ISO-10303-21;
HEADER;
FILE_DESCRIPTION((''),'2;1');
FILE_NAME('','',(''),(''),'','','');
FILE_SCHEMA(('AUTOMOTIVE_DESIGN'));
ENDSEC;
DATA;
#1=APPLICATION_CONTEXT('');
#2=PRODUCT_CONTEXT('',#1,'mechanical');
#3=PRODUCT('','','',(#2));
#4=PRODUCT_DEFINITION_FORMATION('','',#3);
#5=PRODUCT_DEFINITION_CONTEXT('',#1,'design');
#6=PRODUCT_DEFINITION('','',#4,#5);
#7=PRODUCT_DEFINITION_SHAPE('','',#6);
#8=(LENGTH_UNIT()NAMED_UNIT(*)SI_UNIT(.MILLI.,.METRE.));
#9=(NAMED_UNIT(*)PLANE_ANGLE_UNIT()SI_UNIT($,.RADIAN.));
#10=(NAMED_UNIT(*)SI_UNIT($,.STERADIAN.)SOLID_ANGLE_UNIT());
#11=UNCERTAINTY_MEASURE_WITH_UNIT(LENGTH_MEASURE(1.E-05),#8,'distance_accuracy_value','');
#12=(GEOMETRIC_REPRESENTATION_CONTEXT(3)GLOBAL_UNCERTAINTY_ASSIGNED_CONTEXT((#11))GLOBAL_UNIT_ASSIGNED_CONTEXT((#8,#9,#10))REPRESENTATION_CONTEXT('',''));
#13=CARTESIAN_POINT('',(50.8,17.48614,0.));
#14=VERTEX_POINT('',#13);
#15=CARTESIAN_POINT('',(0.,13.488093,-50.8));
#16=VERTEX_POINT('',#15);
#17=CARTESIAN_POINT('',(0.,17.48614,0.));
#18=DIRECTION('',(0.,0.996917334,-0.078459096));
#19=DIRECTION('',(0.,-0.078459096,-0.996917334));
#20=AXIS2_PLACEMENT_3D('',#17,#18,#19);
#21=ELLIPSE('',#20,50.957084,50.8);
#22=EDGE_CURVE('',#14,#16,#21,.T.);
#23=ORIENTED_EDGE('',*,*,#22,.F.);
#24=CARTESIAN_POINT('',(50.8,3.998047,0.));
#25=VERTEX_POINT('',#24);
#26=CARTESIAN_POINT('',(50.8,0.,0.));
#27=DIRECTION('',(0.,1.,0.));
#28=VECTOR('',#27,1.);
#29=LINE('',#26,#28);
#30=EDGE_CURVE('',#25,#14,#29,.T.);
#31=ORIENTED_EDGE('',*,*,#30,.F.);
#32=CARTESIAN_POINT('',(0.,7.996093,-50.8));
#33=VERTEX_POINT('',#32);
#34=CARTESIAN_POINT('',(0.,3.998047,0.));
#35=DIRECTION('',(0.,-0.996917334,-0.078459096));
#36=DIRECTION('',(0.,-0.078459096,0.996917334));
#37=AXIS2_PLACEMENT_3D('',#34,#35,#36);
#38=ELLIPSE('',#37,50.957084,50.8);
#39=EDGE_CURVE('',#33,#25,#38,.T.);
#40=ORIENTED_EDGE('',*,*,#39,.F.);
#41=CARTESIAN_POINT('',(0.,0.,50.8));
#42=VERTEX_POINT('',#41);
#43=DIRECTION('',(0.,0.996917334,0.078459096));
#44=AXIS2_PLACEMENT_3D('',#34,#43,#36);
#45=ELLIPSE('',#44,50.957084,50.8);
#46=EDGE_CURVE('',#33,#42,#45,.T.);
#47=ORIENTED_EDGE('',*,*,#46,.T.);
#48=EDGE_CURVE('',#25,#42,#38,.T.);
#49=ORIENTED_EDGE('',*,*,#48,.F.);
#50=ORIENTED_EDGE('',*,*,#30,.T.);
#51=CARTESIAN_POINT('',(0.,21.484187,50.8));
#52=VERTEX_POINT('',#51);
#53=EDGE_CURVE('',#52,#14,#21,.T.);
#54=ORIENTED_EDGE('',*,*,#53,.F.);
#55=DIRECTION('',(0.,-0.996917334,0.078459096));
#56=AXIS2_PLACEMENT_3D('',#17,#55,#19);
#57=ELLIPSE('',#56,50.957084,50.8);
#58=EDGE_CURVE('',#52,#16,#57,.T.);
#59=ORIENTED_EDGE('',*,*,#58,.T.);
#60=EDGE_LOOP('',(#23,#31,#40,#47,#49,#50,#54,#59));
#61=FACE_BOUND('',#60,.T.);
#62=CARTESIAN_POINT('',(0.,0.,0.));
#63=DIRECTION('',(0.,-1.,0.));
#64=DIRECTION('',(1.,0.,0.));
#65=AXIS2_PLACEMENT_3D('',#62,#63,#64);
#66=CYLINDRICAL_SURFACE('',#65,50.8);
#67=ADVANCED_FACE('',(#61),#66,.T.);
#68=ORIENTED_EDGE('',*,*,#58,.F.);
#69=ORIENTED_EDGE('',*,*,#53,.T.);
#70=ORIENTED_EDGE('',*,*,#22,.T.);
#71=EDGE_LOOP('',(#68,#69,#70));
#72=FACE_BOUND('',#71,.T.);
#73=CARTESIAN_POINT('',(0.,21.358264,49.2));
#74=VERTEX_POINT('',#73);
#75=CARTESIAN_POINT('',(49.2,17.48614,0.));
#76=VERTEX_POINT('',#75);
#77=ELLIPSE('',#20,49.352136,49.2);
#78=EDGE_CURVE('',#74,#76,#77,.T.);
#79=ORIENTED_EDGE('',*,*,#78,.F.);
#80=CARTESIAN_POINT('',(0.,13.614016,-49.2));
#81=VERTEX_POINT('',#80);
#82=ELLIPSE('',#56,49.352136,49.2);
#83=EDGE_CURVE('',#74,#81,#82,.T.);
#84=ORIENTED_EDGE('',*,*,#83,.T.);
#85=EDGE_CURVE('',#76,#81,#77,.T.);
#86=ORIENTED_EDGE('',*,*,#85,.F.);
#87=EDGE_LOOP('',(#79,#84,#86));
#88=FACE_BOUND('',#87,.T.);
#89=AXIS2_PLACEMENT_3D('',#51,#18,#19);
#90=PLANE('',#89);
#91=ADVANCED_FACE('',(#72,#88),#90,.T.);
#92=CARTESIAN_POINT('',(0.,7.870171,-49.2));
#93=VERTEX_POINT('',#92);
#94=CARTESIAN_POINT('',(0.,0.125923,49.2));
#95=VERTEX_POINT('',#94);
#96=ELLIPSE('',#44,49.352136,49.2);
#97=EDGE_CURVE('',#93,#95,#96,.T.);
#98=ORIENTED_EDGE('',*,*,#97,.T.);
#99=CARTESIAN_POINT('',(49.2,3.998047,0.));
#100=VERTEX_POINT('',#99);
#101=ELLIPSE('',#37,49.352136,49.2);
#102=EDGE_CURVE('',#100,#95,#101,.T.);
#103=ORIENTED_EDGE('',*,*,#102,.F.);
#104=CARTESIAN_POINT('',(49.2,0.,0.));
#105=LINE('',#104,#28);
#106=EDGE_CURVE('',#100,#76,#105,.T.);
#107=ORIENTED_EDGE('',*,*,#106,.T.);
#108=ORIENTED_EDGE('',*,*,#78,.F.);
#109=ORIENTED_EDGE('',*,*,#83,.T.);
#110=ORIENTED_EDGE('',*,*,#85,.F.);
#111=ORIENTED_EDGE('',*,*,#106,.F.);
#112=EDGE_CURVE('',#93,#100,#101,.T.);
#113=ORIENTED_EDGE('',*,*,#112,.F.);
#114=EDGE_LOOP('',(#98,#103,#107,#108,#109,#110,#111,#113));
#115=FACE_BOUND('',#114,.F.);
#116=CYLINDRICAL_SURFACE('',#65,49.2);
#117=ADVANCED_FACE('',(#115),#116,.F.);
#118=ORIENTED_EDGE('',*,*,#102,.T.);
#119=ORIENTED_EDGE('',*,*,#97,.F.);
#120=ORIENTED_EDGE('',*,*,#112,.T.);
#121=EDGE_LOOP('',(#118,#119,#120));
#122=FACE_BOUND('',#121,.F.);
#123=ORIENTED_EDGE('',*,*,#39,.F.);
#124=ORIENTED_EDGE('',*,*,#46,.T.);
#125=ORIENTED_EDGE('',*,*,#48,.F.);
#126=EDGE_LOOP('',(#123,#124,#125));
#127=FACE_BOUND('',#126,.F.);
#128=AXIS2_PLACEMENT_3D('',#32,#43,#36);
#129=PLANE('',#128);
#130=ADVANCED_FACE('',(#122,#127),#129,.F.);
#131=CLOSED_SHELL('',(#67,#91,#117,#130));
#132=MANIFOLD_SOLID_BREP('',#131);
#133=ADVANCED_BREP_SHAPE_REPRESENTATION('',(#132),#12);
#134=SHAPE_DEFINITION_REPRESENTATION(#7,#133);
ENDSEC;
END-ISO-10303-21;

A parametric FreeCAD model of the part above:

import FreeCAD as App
import Part
import Sketcher
Q = App.Units.Quantity


def add_polygon(sketch, points):
    """Adds a closed chain of lines whose ends are joined by coincident constraints."""
    first, n = sketch.GeometryCount, len(points)
    for a, b in zip(points, points[1:] + points[:1]):
        sketch.addGeometry(Part.LineSegment(App.Vector(*a, 0), App.Vector(*b, 0)), False)
    for i in range(n):
        sketch.addConstraint(Sketcher.Constraint("Coincident", first + i, 2, first + (i + 1) % n, 1))

doc = App.newDocument("Part")
params = doc.addObject("Spreadsheet::Sheet", "Params")
for row, (alias, value) in enumerate([
    ("sketch1_diameter", "101.6 mm"),
    ("sketch1_diameter2", "98.4 mm"),
    ("pad1_length", "1000 mm"),
    ("sketch2_height", "101.6 mm"),
], start=1):
    params.set(f"A{row}", alias)
    params.set(f"B{row}", "=" + value)
    params.setAlias(f"B{row}", alias)

body = doc.addObject("PartDesign::Body", "Body")

sketch1 = doc.addObject("Sketcher::SketchObject", "Sketch")
body.addObject(sketch1)
sketch1.AttachmentSupport = (doc.XZ_Plane, [""])
sketch1.MapMode = "FlatFace"
sketch1.addGeometry([
    Part.Circle(App.Vector(0, 0, 0), App.Vector(0, 0, 1), 51),
    Part.Circle(App.Vector(0, 0, 0), App.Vector(0, 0, 1), 49),
], False)
sketch1.addConstraint([
    Sketcher.Constraint("Coincident", 0, 3, -1, 1),
    Sketcher.Constraint("Coincident", 1, 3, -1, 1),
    Sketcher.Constraint("Diameter", 0, 101.6),
    Sketcher.Constraint("Diameter", 1, 98.4),
])
sketch1.setExpression("Constraints[2]", "Params.sketch1_diameter")
sketch1.setExpression("Constraints[3]", "Params.sketch1_diameter2")
pad1 = doc.addObject("PartDesign::Pad", "Pad")
body.addObject(pad1)
pad1.Profile = sketch1
pad1.setExpression("Length", "Params.pad1_length")
pad1.Reversed = True

sketch2 = doc.addObject("Sketcher::SketchObject", "Sketch001")
body.addObject(sketch2)
sketch2.AttachmentSupport = (doc.YZ_Plane, [""])
sketch2.MapMode = "FlatFace"
add_polygon(sketch2, [(0, 51), (0, -51), (8, -51)])
add_polygon(sketch2, [(1000, 51), (21, 51), (13, -51), (1000, -51)])
sketch2.addConstraint([
    Sketcher.Constraint("Vertical", 0),
    Sketcher.Constraint("Horizontal", 1),
    Sketcher.Constraint("Horizontal", 3),
    Sketcher.Constraint("Horizontal", 5),
    Sketcher.Constraint("Vertical", 6),
    Sketcher.Constraint("Symmetric", 0, 2, 2, 2, -1, 1),
    Sketcher.Constraint("Horizontal", 2, 2, 3, 2),
    Sketcher.Constraint("Horizontal", 1, 2, 4, 2),
    Sketcher.Constraint("Equal", 2, 4),
    Sketcher.Constraint("DistanceY", 0, 2, 0, 1, 101.6),
    Sketcher.Constraint("DistanceX", -1, 1, 5, 2, 1000.0),
    Sketcher.Constraint("Angle", 2, Q("94.5 deg")),
    Sketcher.Constraint("DistanceX", 1, 2, 4, 2, 5.492),
])
sketch2.setExpression("Constraints[16]", "Params.sketch2_height")
pocket1 = doc.addObject("PartDesign::Pocket", "Pocket")
body.addObject(pocket1)
pocket1.Profile = sketch2
pocket1.Type = "ThroughAll"
pocket1.Midplane = True

doc.recompute()
